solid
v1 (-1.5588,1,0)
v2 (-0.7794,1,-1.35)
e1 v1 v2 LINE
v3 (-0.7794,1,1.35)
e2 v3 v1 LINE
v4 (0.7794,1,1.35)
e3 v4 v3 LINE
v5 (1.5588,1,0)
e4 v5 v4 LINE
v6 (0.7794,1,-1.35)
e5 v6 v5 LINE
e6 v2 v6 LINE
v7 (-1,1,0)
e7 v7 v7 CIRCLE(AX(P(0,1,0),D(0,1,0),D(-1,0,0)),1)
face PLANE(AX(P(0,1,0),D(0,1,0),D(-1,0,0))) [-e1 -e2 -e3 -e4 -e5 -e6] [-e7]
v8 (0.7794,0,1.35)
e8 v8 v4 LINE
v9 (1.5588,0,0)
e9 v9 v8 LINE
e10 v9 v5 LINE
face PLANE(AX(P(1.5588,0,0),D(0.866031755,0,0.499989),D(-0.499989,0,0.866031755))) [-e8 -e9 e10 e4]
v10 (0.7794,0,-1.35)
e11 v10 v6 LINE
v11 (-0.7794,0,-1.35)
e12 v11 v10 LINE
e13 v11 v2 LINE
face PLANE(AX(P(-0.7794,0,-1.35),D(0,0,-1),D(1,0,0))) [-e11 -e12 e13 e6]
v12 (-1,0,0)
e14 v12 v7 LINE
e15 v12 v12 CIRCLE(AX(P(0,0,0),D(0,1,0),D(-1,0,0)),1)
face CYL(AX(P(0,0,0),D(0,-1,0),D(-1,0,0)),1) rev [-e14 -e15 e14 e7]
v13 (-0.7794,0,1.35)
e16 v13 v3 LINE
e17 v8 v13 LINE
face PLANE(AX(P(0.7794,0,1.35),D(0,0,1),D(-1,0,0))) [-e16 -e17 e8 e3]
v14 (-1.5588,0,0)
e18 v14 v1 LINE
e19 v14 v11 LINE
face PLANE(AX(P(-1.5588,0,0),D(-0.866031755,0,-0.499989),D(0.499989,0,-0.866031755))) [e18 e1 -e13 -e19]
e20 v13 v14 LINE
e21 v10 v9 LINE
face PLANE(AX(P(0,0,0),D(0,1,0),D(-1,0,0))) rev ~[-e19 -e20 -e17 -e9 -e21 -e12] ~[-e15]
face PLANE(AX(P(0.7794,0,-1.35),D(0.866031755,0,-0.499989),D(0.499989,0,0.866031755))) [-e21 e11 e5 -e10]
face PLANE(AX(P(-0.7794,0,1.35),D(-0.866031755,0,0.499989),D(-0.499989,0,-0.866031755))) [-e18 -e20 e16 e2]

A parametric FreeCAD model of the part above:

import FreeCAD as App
import Part
import Sketcher
Q = App.Units.Quantity

doc = App.newDocument("Part")
body = doc.addObject("PartDesign::Body", "Body")

# Sketch on XZ plane
sketch1 = body.newObject("Sketcher::SketchObject", "Sketch")
sketch1.AttachmentSupport = (doc.getObject("XZ_Plane"), [""])
sketch1.MapMode = "FlatFace"
sketch1.addGeometry(Part.LineSegment(App.Vector(-0.8, -1.4, 0), App.Vector(-1.6, 0, 0)), False)
sketch1.addGeometry(Part.LineSegment(App.Vector(-1.6, 0, 0), App.Vector(-0.8, 1.4, 0)), False)
sketch1.addGeometry(Part.LineSegment(App.Vector(-0.8, 1.4, 0), App.Vector(0.8, 1.4, 0)), False)
sketch1.addGeometry(Part.LineSegment(App.Vector(0.8, 1.4, 0), App.Vector(1.6, 0, 0)), False)
sketch1.addGeometry(Part.LineSegment(App.Vector(1.6, 0, 0), App.Vector(0.8, -1.4, 0)), False)
sketch1.addGeometry(Part.LineSegment(App.Vector(0.8, -1.4, 0), App.Vector(-0.8, -1.4, 0)), False)
sketch1.addGeometry(Part.Circle(App.Vector(0, 0, 0), App.Vector(0, 0, 1), 1), False)
sketch1.addConstraint(Sketcher.Constraint("Coincident", 0, 2, 1, 1))
sketch1.addConstraint(Sketcher.Constraint("Coincident", 1, 2, 2, 1))
sketch1.addConstraint(Sketcher.Constraint("Coincident", 2, 2, 3, 1))
sketch1.addConstraint(Sketcher.Constraint("Coincident", 3, 2, 4, 1))
sketch1.addConstraint(Sketcher.Constraint("Coincident", 4, 2, 5, 1))
sketch1.addConstraint(Sketcher.Constraint("Coincident", 5, 2, 0, 1))
sketch1.addConstraint(Sketcher.Constraint("Horizontal", 2))
sketch1.addConstraint(Sketcher.Constraint("Horizontal", 5))
sketch1.addConstraint(Sketcher.Constraint("Coincident", 6, 3, -1, 1))
sketch1.addConstraint(Sketcher.Constraint("Symmetric", 0, 2, 3, 2, -1, 1))
sketch1.addConstraint(Sketcher.Constraint("Symmetric", 1, 2, 4, 2, -1, 1))
sketch1.addConstraint(Sketcher.Constraint("PointOnObject", 0, 2, -1))
sketch1.addConstraint(Sketcher.Constraint("Parallel", 0, 3))
sketch1.addConstraint(Sketcher.Constraint("Vertical", 2, 2, 4, 2))
sketch1.addConstraint(Sketcher.Constraint("Diameter", 6, Q("2 mm")))
sketch1.addConstraint(Sketcher.Constraint("DistanceY", 4, 2, 2, 2, Q("2.7 mm")))
sketch1.addConstraint(Sketcher.Constraint("Angle", 0, Q("119.9993 deg")))
sketch1.addConstraint(Sketcher.Constraint("DistanceX", 2, 1, 2, 2, Q("1.5588 mm")))
pad1 = body.newObject("PartDesign::Pad", "Pad")
pad1.Profile = sketch1
pad1.Length = 1
pad1.Reversed = True

doc.recompute()
